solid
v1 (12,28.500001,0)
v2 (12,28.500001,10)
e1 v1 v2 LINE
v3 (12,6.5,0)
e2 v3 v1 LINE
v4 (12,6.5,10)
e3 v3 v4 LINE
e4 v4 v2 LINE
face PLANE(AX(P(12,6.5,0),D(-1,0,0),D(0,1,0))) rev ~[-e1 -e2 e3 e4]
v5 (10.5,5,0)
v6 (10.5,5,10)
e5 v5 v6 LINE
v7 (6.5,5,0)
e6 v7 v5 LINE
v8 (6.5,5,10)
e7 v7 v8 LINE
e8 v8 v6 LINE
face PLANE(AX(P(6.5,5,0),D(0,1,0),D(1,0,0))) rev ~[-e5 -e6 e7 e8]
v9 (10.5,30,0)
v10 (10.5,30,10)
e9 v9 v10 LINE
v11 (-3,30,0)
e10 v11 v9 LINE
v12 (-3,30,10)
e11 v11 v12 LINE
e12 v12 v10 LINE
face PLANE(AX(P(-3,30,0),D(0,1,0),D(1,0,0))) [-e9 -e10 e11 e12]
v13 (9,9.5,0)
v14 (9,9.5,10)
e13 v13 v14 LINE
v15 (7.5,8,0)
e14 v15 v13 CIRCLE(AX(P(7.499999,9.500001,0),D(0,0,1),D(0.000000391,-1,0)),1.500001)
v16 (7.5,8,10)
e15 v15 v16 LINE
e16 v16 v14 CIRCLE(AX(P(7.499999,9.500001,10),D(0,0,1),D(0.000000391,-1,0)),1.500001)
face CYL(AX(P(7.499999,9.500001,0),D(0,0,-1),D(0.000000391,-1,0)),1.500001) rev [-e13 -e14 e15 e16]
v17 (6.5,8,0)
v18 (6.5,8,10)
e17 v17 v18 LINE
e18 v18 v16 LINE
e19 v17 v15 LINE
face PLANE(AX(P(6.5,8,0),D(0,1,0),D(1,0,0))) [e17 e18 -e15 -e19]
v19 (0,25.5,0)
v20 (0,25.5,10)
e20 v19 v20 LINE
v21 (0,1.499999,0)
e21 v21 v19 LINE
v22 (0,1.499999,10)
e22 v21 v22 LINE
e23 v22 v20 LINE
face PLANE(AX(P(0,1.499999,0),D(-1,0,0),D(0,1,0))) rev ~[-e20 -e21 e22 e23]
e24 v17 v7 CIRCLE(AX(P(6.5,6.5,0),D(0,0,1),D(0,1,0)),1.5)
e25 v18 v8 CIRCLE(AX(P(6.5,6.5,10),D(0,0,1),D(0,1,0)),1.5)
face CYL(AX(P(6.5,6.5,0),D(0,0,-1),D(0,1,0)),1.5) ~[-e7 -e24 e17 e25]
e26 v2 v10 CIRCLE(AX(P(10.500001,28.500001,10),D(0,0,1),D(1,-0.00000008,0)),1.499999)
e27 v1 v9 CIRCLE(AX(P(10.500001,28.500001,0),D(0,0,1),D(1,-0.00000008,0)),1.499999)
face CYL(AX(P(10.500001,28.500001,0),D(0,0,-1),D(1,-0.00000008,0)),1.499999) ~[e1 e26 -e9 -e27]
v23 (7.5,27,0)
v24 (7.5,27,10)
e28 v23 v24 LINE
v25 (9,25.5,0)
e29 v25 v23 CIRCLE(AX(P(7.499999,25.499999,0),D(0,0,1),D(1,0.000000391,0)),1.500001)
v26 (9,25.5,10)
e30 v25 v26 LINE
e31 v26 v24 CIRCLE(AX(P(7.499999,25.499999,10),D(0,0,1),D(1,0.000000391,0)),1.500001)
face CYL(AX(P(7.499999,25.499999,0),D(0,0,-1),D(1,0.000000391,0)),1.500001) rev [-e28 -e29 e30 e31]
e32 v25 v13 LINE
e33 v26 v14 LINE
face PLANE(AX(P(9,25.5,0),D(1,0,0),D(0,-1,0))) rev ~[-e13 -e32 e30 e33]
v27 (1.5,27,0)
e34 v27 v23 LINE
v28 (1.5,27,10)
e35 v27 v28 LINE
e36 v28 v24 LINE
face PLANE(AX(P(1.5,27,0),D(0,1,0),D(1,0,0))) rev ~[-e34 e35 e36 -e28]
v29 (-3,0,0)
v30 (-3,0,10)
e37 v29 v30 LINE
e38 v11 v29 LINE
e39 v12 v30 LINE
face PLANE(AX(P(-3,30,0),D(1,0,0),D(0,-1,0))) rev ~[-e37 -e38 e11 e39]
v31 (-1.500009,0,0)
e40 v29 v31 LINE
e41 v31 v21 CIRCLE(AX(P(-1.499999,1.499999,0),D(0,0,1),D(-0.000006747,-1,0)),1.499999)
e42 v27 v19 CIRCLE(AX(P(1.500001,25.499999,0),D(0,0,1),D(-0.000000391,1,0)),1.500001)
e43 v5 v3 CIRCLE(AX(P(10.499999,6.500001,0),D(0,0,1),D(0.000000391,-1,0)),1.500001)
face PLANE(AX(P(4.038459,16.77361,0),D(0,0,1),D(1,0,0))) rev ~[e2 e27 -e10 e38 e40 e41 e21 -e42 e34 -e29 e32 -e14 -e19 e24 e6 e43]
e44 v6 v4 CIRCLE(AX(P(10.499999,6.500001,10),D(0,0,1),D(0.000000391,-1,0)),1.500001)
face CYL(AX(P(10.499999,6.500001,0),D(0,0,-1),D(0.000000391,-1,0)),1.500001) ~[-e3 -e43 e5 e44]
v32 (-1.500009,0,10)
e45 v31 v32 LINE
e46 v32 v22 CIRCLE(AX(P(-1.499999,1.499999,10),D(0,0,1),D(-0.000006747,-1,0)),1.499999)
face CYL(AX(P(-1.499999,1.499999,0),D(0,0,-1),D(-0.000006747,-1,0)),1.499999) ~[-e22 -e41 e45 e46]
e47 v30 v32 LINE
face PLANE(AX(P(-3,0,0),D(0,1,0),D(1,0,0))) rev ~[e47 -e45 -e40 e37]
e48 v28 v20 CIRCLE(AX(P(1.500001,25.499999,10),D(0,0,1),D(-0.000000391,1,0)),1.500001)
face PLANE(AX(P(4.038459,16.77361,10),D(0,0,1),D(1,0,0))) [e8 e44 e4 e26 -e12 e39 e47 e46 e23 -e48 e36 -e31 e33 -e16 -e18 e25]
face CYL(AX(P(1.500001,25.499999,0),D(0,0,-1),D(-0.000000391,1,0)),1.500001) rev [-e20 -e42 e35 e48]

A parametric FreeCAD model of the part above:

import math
import FreeCAD as App
import Part
import Sketcher

V = App.Vector

doc = App.newDocument("Part")
body = doc.addObject("PartDesign::Body", "Body")

sketch1 = body.newObject("Sketcher::SketchObject", "Sketch")
sketch1.AttachmentSupport = (doc.getObject("XY_Plane"), [""])
sketch1.MapMode = "FlatFace"
sketch1.addGeometry([
    Part.LineSegment(V(-3, 30, 0), V(-3, 0, 0)),
    Part.LineSegment(V(-3, 0, 0), V(-1.500009, 0, 0)),
    Part.ArcOfCircle(Part.Circle(V(-1.499999, 1.499999, 0), V(0, 0, 1), 1.499999), math.radians(-90.000387), math.radians(0.000005)),
    Part.LineSegment(V(0, 1.499999, 0), V(0, 25.5, 0)),
    Part.ArcOfCircle(Part.Circle(V(1.500001, 25.499999, 0), V(0, 0, 1), 1.500001), math.radians(90.000022), math.radians(179.999978)),
    Part.LineSegment(V(1.5, 27, 0), V(7.5, 27, 0)),
    Part.ArcOfCircle(Part.Circle(V(7.499999, 25.499999, 0), V(0, 0, 1), 1.500001), math.radians(0.000022), math.radians(89.999978)),
    Part.LineSegment(V(9, 25.5, 0), V(9, 9.5, 0)),
    Part.ArcOfCircle(Part.Circle(V(7.499999, 9.500001, 0), V(0, 0, 1), 1.500001), math.radians(-89.999978), math.radians(-0.000022)),
    Part.LineSegment(V(7.5, 8, 0), V(6.5, 8, 0)),
    Part.ArcOfCircle(Part.Circle(V(6.5, 6.5, 0), V(0, 0, 1), 1.5), math.radians(90), math.radians(270)),
    Part.LineSegment(V(6.5, 5, 0), V(10.5, 5, 0)),
    Part.ArcOfCircle(Part.Circle(V(10.499999, 6.500001, 0), V(0, 0, 1), 1.500001), math.radians(-89.999978), math.radians(-0.000022)),
    Part.LineSegment(V(12, 6.5, 0), V(12, 28.500001, 0)),
    Part.ArcOfCircle(Part.Circle(V(10.500001, 28.500001, 0), V(0, 0, 1), 1.499999), math.radians(-0.000005), math.radians(90.000043)),
    Part.LineSegment(V(10.5, 30, 0), V(-3, 30, 0)),
], False)
sketch1.addConstraint([
    Sketcher.Constraint("Coincident", 0, 2, 1, 1),
    Sketcher.Constraint("Coincident", 1, 2, 2, 1),
    Sketcher.Constraint("Tangent", 2, 2, 3, 1),
    Sketcher.Constraint("Tangent", 3, 2, 4, 2),
    Sketcher.Constraint("Tangent", 4, 1, 5, 1),
    Sketcher.Constraint("Tangent", 5, 2, 6, 2),
    Sketcher.Constraint("Tangent", 6, 1, 7, 1),
    Sketcher.Constraint("Tangent", 7, 2, 8, 2),
    Sketcher.Constraint("Tangent", 8, 1, 9, 1),
    Sketcher.Constraint("Tangent", 9, 2, 10, 1),
    Sketcher.Constraint("Tangent", 10, 2, 11, 1),
    Sketcher.Constraint("Tangent", 11, 2, 12, 1),
    Sketcher.Constraint("Tangent", 12, 2, 13, 1),
    Sketcher.Constraint("Tangent", 13, 2, 14, 1),
    Sketcher.Constraint("Tangent", 14, 2, 15, 1),
    Sketcher.Constraint("Coincident", 15, 2, 0, 1),
    Sketcher.Constraint("Vertical", 0),
    Sketcher.Constraint("Horizontal", 1),
    Sketcher.Constraint("Vertical", 3),
    Sketcher.Constraint("Horizontal", 5),
    Sketcher.Constraint("Vertical", 7),
    Sketcher.Constraint("Horizontal", 9),
    Sketcher.Constraint("Horizontal", 11),
    Sketcher.Constraint("Vertical", 13),
    Sketcher.Constraint("Horizontal", 15),
    Sketcher.Constraint("Equal", 2, 4),
    Sketcher.Constraint("Equal", 4, 6),
    Sketcher.Constraint("Equal", 6, 8),
    Sketcher.Constraint("Equal", 8, 10),
    Sketcher.Constraint("Equal", 10, 12),
    Sketcher.Constraint("Equal", 12, 14),
    Sketcher.Constraint("PointOnObject", 0, 2, -1),
    Sketcher.Constraint("PointOnObject", 2, 2, -2),
    Sketcher.Constraint("Radius", 2, 1.499999),
    Sketcher.Constraint("DistanceX", 5, 1, 5, 2, 6.0),
    Sketcher.Constraint("DistanceX", 9, 2, 9, 1, 1.0),
    Sketcher.Constraint("DistanceX", 11, 1, 11, 2, 4.0),
    Sketcher.Constraint("DistanceY", 0, 2, 0, 1, 30.0),
    Sketcher.Constraint("DistanceY", 3, 1, 3, 2, 24.000001),
    Sketcher.Constraint("DistanceY", 7, 2, 7, 1, 16.0),
    Sketcher.Constraint("DistanceX", 15, 2, 15, 1, 13.5),
    Sketcher.Constraint("DistanceX", 1, 1, 1, 2, 1.499991),
])
pad1 = body.newObject("PartDesign::Pad", "Pad")
pad1.Profile = sketch1
pad1.Length = 10

doc.recompute()
